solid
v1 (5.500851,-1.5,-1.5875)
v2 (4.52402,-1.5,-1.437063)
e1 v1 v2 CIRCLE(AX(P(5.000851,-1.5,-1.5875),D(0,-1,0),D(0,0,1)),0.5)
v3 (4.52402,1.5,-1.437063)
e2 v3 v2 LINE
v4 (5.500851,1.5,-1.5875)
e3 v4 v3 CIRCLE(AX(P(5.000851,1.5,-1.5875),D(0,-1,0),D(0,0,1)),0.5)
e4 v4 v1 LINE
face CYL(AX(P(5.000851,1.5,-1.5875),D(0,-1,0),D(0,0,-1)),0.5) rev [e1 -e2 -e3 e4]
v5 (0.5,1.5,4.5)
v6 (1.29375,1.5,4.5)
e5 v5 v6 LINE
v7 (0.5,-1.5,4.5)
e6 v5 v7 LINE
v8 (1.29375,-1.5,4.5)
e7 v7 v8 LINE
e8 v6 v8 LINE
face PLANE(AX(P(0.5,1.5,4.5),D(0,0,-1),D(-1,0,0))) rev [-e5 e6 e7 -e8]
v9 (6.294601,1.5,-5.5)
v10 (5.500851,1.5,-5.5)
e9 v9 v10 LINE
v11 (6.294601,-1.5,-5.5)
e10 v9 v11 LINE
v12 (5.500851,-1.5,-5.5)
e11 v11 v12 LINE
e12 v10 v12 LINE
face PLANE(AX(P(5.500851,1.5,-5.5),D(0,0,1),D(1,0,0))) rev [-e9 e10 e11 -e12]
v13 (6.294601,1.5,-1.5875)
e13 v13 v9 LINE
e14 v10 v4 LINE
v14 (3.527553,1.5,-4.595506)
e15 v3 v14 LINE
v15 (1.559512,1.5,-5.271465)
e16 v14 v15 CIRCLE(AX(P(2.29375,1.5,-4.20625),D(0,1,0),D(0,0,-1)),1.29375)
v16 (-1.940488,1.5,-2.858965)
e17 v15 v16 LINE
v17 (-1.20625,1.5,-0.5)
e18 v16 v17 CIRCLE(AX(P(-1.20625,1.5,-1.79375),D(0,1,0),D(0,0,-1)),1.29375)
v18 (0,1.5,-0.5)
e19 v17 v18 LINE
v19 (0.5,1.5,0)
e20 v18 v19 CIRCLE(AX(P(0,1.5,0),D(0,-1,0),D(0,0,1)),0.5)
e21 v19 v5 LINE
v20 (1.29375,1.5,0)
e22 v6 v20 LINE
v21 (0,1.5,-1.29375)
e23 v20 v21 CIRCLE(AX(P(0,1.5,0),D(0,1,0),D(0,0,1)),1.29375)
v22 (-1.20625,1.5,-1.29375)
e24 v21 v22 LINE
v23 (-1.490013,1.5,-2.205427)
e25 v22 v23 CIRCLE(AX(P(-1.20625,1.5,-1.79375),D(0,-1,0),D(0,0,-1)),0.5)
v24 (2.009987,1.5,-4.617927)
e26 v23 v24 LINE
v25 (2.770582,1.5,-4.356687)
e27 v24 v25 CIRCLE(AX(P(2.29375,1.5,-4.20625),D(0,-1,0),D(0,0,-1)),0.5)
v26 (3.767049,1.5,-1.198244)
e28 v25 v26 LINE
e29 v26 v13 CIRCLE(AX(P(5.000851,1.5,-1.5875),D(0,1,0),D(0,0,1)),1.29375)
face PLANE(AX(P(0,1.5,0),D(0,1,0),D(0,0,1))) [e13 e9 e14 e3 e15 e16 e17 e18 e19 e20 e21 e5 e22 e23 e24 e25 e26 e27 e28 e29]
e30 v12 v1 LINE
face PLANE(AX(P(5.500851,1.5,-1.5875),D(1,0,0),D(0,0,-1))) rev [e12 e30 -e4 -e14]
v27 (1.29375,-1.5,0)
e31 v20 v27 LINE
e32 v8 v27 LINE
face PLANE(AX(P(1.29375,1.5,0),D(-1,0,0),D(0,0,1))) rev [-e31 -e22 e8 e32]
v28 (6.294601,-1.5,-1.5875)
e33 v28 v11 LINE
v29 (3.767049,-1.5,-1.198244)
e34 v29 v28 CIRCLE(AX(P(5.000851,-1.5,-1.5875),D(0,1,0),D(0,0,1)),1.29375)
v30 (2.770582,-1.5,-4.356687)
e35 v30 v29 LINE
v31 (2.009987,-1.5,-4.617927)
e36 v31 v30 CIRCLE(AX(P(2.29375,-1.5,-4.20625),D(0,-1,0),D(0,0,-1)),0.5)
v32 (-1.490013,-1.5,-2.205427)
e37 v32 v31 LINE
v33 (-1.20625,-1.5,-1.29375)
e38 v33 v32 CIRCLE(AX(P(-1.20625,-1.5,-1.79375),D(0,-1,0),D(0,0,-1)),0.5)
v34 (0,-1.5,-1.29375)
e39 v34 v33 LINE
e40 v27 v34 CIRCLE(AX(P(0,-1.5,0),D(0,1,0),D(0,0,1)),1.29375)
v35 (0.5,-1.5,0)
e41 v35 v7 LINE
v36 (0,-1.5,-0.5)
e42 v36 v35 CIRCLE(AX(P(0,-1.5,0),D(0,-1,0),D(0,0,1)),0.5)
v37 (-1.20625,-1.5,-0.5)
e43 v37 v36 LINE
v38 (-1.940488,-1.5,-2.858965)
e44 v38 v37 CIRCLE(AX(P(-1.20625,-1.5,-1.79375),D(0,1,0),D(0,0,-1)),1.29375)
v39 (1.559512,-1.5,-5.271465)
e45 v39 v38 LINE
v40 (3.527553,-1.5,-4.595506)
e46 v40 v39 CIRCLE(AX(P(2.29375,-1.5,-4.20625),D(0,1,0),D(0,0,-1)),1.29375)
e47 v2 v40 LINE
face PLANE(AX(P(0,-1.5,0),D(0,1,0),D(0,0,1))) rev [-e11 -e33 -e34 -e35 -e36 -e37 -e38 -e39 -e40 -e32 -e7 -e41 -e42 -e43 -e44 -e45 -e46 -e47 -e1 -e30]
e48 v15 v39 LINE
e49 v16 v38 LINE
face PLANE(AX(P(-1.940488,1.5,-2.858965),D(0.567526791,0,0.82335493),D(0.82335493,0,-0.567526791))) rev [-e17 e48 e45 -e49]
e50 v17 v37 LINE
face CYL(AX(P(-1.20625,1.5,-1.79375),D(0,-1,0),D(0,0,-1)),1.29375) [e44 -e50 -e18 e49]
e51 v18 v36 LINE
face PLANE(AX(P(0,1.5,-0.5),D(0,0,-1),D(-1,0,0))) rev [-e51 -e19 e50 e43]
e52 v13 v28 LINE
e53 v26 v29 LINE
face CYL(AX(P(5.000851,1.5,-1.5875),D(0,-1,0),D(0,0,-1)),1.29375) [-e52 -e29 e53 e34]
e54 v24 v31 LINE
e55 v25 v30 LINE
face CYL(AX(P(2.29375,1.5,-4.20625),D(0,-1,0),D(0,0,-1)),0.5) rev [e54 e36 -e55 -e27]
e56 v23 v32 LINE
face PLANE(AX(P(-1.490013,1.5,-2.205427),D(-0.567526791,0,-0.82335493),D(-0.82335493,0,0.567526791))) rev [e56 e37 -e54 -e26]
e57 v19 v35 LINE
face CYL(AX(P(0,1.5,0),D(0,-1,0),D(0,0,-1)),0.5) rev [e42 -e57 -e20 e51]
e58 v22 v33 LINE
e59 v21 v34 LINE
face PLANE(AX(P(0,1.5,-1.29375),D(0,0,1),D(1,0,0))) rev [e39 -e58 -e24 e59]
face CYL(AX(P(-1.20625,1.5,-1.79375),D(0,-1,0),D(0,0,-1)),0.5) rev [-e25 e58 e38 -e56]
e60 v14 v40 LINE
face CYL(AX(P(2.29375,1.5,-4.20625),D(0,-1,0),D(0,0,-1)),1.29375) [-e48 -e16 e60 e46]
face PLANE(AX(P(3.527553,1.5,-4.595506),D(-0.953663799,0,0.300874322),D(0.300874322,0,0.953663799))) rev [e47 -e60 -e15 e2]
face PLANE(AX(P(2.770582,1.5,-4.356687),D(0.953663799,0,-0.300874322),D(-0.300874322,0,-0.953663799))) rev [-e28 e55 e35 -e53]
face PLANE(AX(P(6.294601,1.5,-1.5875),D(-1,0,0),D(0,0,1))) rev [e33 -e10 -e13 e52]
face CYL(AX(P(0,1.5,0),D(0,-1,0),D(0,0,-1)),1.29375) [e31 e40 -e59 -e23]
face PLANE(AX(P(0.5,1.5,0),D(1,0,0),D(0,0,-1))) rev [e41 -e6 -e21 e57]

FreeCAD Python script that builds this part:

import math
import FreeCAD as App
import Part
import Sketcher

V = App.Vector

doc = App.newDocument("Part")
params = doc.addObject("Spreadsheet::Sheet", "Params")
for row, (alias, value) in enumerate([
    ("sketch1_radius", "0.5 mm"),
    ("sketch1_height", "4.5 mm"),
    ("pad1_length", "3 mm"),
], start=1):
    params.set(f"A{row}", alias)
    params.set(f"B{row}", "=" + value)
    params.setAlias(f"B{row}", alias)

body = doc.addObject("PartDesign::Body", "Body")

# Sketch on XZ plane
sketch1 = doc.addObject("Sketcher::SketchObject", "Sketch")
body.addObject(sketch1)
sketch1.AttachmentSupport = (doc.XZ_Plane, [""])
sketch1.MapMode = "FlatFace"
sketch1.addGeometry(Part.LineSegment(V(1.29, 4.5, 0), V(1.29, 0, 0)), False)
sketch1.addGeometry(Part.ArcOfCircle(Part.Circle(V(0, 0, 0), V(0, 0, 1), 1.29), math.radians(-90), math.radians(0)), False)
sketch1.addGeometry(Part.LineSegment(V(0, -1.29, 0), V(-1.21, -1.29, 0)), False)
sketch1.addGeometry(Part.ArcOfCircle(Part.Circle(V(-1.21, -1.79, 0), V(0, 0, 1), 0.5), math.radians(90), math.radians(235)), False)
sketch1.addGeometry(Part.LineSegment(V(-1.49, -2.21, 0), V(2.01, -4.62, 0)), False)
sketch1.addGeometry(Part.ArcOfCircle(Part.Circle(V(2.29, -4.21, 0), V(0, 0, 1), 0.5), math.radians(-125), math.radians(-18)), False)
sketch1.addGeometry(Part.LineSegment(V(2.77, -4.36, 0), V(3.77, -1.2, 0)), False)
sketch1.addGeometry(Part.ArcOfCircle(Part.Circle(V(5, -1.59, 0), V(0, 0, 1), 1.29), math.radians(0), math.radians(162)), False)
sketch1.addGeometry(Part.LineSegment(V(6.29, -1.59, 0), V(6.29, -5.5, 0)), False)
sketch1.addGeometry(Part.LineSegment(V(6.29, -5.5, 0), V(5.5, -5.5, 0)), False)
sketch1.addGeometry(Part.LineSegment(V(5.5, -5.5, 0), V(5.5, -1.59, 0)), False)
sketch1.addGeometry(Part.ArcOfCircle(Part.Circle(V(5, -1.59, 0), V(0, 0, 1), 0.5), math.radians(0), math.radians(162)), False)
sketch1.addGeometry(Part.LineSegment(V(4.52, -1.44, 0), V(3.53, -4.6, 0)), False)
sketch1.addGeometry(Part.ArcOfCircle(Part.Circle(V(2.29, -4.21, 0), V(0, 0, 1), 1.29), math.radians(-125), math.radians(-18)), False)
sketch1.addGeometry(Part.LineSegment(V(1.56, -5.27, 0), V(-1.94, -2.86, 0)), False)
sketch1.addGeometry(Part.ArcOfCircle(Part.Circle(V(-1.21, -1.79, 0), V(0, 0, 1), 1.29), math.radians(90), math.radians(235)), False)
sketch1.addGeometry(Part.LineSegment(V(-1.21, -0.5, 0), V(0, -0.5, 0)), False)
sketch1.addGeometry(Part.ArcOfCircle(Part.Circle(V(0, 0, 0), V(0, 0, 1), 0.5), math.radians(-90), math.radians(0)), False)
sketch1.addGeometry(Part.LineSegment(V(0.5, 0, 0), V(0.5, 4.5, 0)), False)
sketch1.addGeometry(Part.LineSegment(V(0.5, 4.5, 0), V(1.29, 4.5, 0)), False)
sketch1.addConstraint(Sketcher.Constraint("Tangent", 0, 2, 1, 2))
sketch1.addConstraint(Sketcher.Constraint("Tangent", 1, 1, 2, 1))
sketch1.addConstraint(Sketcher.Constraint("Tangent", 2, 2, 3, 1))
sketch1.addConstraint(Sketcher.Constraint("Tangent", 3, 2, 4, 1))
sketch1.addConstraint(Sketcher.Constraint("Tangent", 4, 2, 5, 1))
sketch1.addConstraint(Sketcher.Constraint("Tangent", 5, 2, 6, 1))
sketch1.addConstraint(Sketcher.Constraint("Tangent", 6, 2, 7, 2))
sketch1.addConstraint(Sketcher.Constraint("Tangent", 7, 1, 8, 1))
sketch1.addConstraint(Sketcher.Constraint("Coincident", 8, 2, 9, 1))
sketch1.addConstraint(Sketcher.Constraint("Coincident", 9, 2, 10, 1))
sketch1.addConstraint(Sketcher.Constraint("Tangent", 10, 2, 11, 1))
sketch1.addConstraint(Sketcher.Constraint("Tangent", 11, 2, 12, 1))
sketch1.addConstraint(Sketcher.Constraint("Tangent", 12, 2, 13, 2))
sketch1.addConstraint(Sketcher.Constraint("Tangent", 13, 1, 14, 1))
sketch1.addConstraint(Sketcher.Constraint("Tangent", 14, 2, 15, 2))
sketch1.addConstraint(Sketcher.Constraint("Tangent", 15, 1, 16, 1))
sketch1.addConstraint(Sketcher.Constraint("Tangent", 16, 2, 17, 1))
sketch1.addConstraint(Sketcher.Constraint("Tangent", 17, 2, 18, 1))
sketch1.addConstraint(Sketcher.Constraint("Coincident", 18, 2, 19, 1))
sketch1.addConstraint(Sketcher.Constraint("Coincident", 19, 2, 0, 1))
sketch1.addConstraint(Sketcher.Constraint("Vertical", 0))
sketch1.addConstraint(Sketcher.Constraint("Horizontal", 2))
sketch1.addConstraint(Sketcher.Constraint("Vertical", 8))
sketch1.addConstraint(Sketcher.Constraint("Horizontal", 9))
sketch1.addConstraint(Sketcher.Constraint("Vertical", 10))
sketch1.addConstraint(Sketcher.Constraint("Horizontal", 16))
sketch1.addConstraint(Sketcher.Constraint("Vertical", 18))
sketch1.addConstraint(Sketcher.Constraint("Horizontal", 19))
sketch1.addConstraint(Sketcher.Constraint("Coincident", 1, 3, -1, 1))
sketch1.addConstraint(Sketcher.Constraint("Coincident", 17, 3, -1, 1))
sketch1.addConstraint(Sketcher.Constraint("Coincident", 11, 3, 7, 3))
sketch1.addConstraint(Sketcher.Constraint("Coincident", 13, 3, 5, 3))
sketch1.addConstraint(Sketcher.Constraint("Coincident", 15, 3, 3, 3))
sketch1.addConstraint(Sketcher.Constraint("Equal", 3, 5))
sketch1.addConstraint(Sketcher.Constraint("Equal", 1, 7))
sketch1.addConstraint(Sketcher.Constraint("Equal", 5, 11))
sketch1.addConstraint(Sketcher.Constraint("Equal", 7, 13))
sketch1.addConstraint(Sketcher.Constraint("Equal", 13, 15))
sketch1.addConstraint(Sketcher.Constraint("Radius", 3, 0.5))
sketch1.addConstraint(Sketcher.Constraint("DistanceY", 0, 2, 0, 1, 4.5))
sketch1.addConstraint(Sketcher.Constraint("DistanceY", 8, 2, -1, 1, 5.5))
sketch1.addConstraint(Sketcher.Constraint("DistanceX", 3, 3, 5, 3, 3.5))
sketch1.addConstraint(Sketcher.Constraint("DistanceX", 3, 3, 0, 2, 2.5))
sketch1.addConstraint(Sketcher.Constraint("Radius", 1, 1.29375))
sketch1.addConstraint(Sketcher.Constraint("DistanceY", 8, 2, 8, 1, 3.9125))
sketch1.addConstraint(Sketcher.Constraint("Distance", 4, 4.250901))
sketch1.addConstraint(Sketcher.Constraint("DistanceX", -1, 1, 7, 1, 6.294601))
sketch1.setExpression("Constraints[38]", "Params.sketch1_radius")
sketch1.setExpression("Constraints[39]", "Params.sketch1_height")
pad1 = doc.addObject("PartDesign::Pad", "Pad")
body.addObject(pad1)
pad1.Profile = sketch1
pad1.setExpression("Length", "Params.pad1_length")
pad1.Midplane = True

doc.recompute()
